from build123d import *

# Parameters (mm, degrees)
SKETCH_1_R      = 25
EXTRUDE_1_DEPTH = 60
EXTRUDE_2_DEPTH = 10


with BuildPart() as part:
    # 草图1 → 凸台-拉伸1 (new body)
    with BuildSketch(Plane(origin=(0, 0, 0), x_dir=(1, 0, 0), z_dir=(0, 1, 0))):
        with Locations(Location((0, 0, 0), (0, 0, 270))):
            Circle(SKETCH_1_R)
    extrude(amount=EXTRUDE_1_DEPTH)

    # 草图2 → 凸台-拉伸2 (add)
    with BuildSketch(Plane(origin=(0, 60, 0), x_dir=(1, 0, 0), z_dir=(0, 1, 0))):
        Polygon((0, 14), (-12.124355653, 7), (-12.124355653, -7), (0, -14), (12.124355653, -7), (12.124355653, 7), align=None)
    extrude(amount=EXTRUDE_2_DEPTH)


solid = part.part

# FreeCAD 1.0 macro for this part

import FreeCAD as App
import Part
import Sketcher

V = App.Vector
Q = App.Units.Quantity

doc = App.newDocument("Part")
body = doc.addObject("PartDesign::Body", "Body")

# Sketch on XZ plane
sketch1 = doc.addObject("Sketcher::SketchObject", "Sketch")
body.addObject(sketch1)
sketch1.AttachmentSupport = (doc.XZ_Plane, [""])
sketch1.MapMode = "FlatFace"
sketch1.addGeometry(Part.Circle(V(0, 0, 0), V(0, 0, 1), 25), False)
sketch1.addConstraint([
    Sketcher.Constraint("Coincident", 0, 3, -1, 1),
    Sketcher.Constraint("Diameter", 0, 50.0),
])
pad1 = doc.addObject("PartDesign::Pad", "Pad")
body.addObject(pad1)
pad1.Profile = sketch1
pad1.Length = 60
pad1.Reversed = True

# Sketch on XZ plane
sketch2 = doc.addObject("Sketcher::SketchObject", "Sketch001")
body.addObject(sketch2)
sketch2.AttachmentSupport = (doc.XZ_Plane, [""])
sketch2.MapMode = "FlatFace"
sketch2.AttachmentOffset = App.Placement(V(0, 0, -60), App.Rotation())
sketch2.addGeometry([
    Part.LineSegment(V(0, -14, 0), V(-12, -7, 0)),  # 0
    Part.LineSegment(V(-12, -7, 0), V(-12, 7, 0)),  # 1
    Part.LineSegment(V(-12, 7, 0), V(0, 14, 0)),  # 2
    Part.LineSegment(V(0, 14, 0), V(12, 7, 0)),  # 3
    Part.LineSegment(V(12, 7, 0), V(12, -7, 0)),  # 4
    Part.LineSegment(V(12, -7, 0), V(0, -14, 0)),  # 5
], False)
sketch2.addConstraint([
    Sketcher.Constraint("Coincident", 0, 2, 1, 1),
    Sketcher.Constraint("Coincident", 1, 2, 2, 1),
    Sketcher.Constraint("Coincident", 2, 2, 3, 1),
    Sketcher.Constraint("Coincident", 3, 2, 4, 1),
    Sketcher.Constraint("Coincident", 4, 2, 5, 1),
    Sketcher.Constraint("Coincident", 5, 2, 0, 1),
    Sketcher.Constraint("Vertical", 1),
    Sketcher.Constraint("Vertical", 4),
    Sketcher.Constraint("Symmetric", 0, 2, 3, 2, -1, 1),
    Sketcher.Constraint("Symmetric", 2, 2, 5, 2, -1, 1),
    Sketcher.Constraint("PointOnObject", 2, 2, -2),
    Sketcher.Constraint("Parallel", 2, 5),
    Sketcher.Constraint("Horizontal", 1, 2, 3, 2),
    Sketcher.Constraint("DistanceY", 1, 1, 1, 2, 14.0),
    Sketcher.Constraint("Angle", 0, Q("150 deg")),
    Sketcher.Constraint("Distance", 0, 14.0),
])
pad2 = doc.addObject("PartDesign::Pad", "Pad001")
body.addObject(pad2)
pad2.Profile = sketch2
pad2.Length = 10
pad2.Reversed = True

doc.recompute()
